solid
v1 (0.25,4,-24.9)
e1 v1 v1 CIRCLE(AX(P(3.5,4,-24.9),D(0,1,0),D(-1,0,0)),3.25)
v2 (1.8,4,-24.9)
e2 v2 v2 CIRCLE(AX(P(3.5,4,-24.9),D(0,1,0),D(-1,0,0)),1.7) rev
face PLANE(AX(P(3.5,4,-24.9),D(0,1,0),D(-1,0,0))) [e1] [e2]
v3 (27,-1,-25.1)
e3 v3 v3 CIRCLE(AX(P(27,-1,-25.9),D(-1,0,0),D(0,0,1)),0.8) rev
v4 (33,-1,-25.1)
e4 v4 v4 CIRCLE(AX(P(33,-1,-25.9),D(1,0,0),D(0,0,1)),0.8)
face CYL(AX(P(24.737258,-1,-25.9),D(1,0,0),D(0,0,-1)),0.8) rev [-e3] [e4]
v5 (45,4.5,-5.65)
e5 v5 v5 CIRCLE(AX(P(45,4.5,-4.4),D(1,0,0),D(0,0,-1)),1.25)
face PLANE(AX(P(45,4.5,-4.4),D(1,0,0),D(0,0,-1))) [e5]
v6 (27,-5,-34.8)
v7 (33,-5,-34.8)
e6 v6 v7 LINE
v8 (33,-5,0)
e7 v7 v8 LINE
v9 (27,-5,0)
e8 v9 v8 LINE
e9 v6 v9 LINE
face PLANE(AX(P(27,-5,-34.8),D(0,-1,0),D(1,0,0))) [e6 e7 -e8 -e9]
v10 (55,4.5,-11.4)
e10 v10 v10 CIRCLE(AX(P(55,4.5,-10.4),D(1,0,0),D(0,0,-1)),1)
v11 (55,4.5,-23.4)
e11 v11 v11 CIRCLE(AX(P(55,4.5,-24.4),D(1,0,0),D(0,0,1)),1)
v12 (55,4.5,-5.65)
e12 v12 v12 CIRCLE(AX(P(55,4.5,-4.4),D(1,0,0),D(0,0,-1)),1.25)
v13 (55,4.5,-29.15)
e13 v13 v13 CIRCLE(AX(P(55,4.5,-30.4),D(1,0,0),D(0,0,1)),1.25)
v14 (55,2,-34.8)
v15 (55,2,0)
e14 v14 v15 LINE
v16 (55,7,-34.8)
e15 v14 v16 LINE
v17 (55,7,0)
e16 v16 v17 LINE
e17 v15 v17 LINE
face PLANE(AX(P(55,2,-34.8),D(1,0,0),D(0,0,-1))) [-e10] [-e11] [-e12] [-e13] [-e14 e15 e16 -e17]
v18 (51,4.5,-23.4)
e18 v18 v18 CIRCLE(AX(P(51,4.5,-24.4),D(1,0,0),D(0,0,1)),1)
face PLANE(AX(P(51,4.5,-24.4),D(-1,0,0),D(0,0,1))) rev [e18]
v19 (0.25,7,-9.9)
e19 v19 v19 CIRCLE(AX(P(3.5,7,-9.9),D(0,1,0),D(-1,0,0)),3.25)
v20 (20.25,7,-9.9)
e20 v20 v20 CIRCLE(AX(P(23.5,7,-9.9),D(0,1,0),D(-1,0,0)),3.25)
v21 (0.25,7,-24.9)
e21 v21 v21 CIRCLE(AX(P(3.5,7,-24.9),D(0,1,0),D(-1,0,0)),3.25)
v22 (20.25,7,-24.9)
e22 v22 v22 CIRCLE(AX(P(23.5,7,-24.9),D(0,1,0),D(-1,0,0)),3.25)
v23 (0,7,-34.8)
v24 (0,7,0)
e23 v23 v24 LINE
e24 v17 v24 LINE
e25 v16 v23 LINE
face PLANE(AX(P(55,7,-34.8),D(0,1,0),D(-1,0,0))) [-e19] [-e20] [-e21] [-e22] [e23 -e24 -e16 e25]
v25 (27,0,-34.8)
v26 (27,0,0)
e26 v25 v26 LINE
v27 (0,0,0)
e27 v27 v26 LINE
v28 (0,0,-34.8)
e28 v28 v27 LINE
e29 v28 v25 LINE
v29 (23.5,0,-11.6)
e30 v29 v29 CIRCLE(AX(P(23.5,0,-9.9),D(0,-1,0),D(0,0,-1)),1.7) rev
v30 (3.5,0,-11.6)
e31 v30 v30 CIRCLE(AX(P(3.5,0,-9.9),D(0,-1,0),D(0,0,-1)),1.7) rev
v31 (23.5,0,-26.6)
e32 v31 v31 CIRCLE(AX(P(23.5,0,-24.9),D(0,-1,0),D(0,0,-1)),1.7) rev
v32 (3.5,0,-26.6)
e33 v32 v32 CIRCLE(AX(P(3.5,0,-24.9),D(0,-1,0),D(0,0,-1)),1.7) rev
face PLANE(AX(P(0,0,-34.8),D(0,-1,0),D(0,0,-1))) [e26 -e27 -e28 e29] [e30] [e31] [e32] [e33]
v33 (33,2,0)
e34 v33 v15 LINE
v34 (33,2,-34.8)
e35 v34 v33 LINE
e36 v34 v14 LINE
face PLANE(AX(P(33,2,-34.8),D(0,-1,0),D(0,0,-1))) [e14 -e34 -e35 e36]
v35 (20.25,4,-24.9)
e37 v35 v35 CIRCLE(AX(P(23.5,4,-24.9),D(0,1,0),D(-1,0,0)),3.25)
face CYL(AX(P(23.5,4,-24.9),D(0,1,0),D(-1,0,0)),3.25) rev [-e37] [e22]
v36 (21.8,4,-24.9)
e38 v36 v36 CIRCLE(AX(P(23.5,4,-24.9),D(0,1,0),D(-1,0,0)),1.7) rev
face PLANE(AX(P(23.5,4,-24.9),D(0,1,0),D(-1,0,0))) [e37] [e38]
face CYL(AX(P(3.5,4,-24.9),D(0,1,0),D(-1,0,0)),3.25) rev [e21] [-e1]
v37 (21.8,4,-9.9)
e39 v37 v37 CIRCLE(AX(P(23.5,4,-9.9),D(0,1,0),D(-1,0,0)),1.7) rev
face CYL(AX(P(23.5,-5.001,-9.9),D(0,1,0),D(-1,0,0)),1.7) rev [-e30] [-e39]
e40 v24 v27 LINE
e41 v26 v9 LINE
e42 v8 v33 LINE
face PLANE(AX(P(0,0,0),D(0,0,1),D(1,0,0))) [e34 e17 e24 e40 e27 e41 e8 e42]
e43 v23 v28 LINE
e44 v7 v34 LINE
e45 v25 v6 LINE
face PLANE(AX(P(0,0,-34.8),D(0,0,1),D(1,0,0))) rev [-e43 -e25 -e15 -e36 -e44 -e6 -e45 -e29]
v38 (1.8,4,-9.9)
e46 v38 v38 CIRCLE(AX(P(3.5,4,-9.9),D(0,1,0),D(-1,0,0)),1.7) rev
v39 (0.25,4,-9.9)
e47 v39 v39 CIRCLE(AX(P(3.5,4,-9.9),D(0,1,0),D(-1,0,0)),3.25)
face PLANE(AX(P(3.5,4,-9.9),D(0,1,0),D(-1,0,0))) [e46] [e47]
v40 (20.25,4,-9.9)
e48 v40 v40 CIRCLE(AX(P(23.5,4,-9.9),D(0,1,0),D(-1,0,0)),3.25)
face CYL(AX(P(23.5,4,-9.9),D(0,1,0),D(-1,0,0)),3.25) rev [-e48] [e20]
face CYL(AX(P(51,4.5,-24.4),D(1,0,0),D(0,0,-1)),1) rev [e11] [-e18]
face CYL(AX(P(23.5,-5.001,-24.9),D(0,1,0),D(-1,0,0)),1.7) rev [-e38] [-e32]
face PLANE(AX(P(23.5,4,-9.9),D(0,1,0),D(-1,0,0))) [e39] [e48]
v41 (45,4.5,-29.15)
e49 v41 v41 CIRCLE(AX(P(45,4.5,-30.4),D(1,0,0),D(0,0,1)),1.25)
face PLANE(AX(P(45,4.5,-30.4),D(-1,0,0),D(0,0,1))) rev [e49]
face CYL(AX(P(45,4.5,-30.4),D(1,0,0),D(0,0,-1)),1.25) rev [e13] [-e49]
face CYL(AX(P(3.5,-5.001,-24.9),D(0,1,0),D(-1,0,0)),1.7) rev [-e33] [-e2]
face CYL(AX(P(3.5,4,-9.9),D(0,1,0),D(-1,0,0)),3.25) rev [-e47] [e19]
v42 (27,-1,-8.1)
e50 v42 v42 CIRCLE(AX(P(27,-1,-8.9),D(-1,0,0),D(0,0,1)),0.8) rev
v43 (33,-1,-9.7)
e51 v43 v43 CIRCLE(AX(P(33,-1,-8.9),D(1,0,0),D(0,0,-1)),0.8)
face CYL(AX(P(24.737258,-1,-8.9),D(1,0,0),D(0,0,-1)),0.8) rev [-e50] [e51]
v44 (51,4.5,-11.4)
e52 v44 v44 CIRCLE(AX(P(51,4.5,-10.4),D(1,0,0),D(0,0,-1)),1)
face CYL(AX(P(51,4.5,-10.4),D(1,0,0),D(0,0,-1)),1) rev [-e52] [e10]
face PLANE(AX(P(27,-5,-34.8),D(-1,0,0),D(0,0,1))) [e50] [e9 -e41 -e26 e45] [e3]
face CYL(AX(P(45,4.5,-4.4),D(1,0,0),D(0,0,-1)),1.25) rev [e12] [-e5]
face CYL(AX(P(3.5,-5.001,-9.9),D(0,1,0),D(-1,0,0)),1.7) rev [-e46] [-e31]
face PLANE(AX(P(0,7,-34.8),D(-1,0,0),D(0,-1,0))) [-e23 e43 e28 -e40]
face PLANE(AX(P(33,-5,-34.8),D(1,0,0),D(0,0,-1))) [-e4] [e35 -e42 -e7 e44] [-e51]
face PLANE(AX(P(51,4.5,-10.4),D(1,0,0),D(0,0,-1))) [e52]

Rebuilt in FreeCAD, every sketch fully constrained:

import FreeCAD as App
import Part
import Sketcher

V = App.Vector


def add_polygon(sketch, points):
    """Adds a closed chain of lines whose ends are joined by coincident constraints."""
    first, n = sketch.GeometryCount, len(points)
    for a, b in zip(points, points[1:] + points[:1]):
        sketch.addGeometry(Part.LineSegment(App.Vector(*a, 0), App.Vector(*b, 0)), False)
    for i in range(n):
        sketch.addConstraint(Sketcher.Constraint("Coincident", first + i, 2, first + (i + 1) % n, 1))

doc = App.newDocument("Part")
body = doc.addObject("PartDesign::Body", "Body")

sketch1 = doc.addObject("Sketcher::SketchObject", "Sketch")
body.addObject(sketch1)
sketch1.AttachmentSupport = (doc.XY_Plane, [""])
sketch1.MapMode = "FlatFace"
add_polygon(sketch1, [(0, 0), (27, 0), (27, -5), (33, -5), (33, 2), (55, 2), (55, 7), (0, 7)])
sketch1.addConstraint([
    Sketcher.Constraint("Horizontal", 0),
    Sketcher.Constraint("Vertical", 1),
    Sketcher.Constraint("Horizontal", 2),
    Sketcher.Constraint("Vertical", 3),
    Sketcher.Constraint("Horizontal", 4),
    Sketcher.Constraint("Vertical", 5),
    Sketcher.Constraint("Horizontal", 6),
    Sketcher.Constraint("Vertical", 7),
    Sketcher.Constraint("Coincident", 7, 2, -1, 1),
    Sketcher.Constraint("Equal", 1, 5),
    Sketcher.Constraint("DistanceX", 0, 1, 0, 2, 27.0),
    Sketcher.Constraint("DistanceX", 2, 1, 2, 2, 6.0),
    Sketcher.Constraint("DistanceX", 4, 1, 4, 2, 22.0),
    Sketcher.Constraint("DistanceY", 1, 2, 1, 1, 5.0),
    Sketcher.Constraint("DistanceY", 3, 1, 3, 2, 7.0),
])
pad1 = doc.addObject("PartDesign::Pad", "Pad")
body.addObject(pad1)
pad1.Profile = sketch1
pad1.Length = 34.8
pad1.Reversed = True

sketch2 = doc.addObject("Sketcher::SketchObject", "Sketch001")
body.addObject(sketch2)
sketch2.AttachmentSupport = (doc.XZ_Plane, [""])
sketch2.MapMode = "FlatFace"
sketch2.AttachmentOffset = App.Placement(V(0, 0, -7), App.Rotation())
sketch2.addGeometry(Part.Circle(V(3.5, -24.9, 0), V(0, 0, 1), 1.7), False)
sketch2.addConstraint([
    Sketcher.Constraint("Diameter", 0, 3.4),
    Sketcher.Constraint("DistanceX", -1, 1, 0, 3, 3.5),
    Sketcher.Constraint("DistanceY", 0, 3, -1, 1, 24.9),
])
pocket1 = doc.addObject("PartDesign::Pocket", "Pocket")
body.addObject(pocket1)
pocket1.Profile = sketch2
pocket1.Type = "UpToFirst"
pocket1.Reversed = True

sketch3 = doc.addObject("Sketcher::SketchObject", "Sketch002")
body.addObject(sketch3)
sketch3.AttachmentSupport = (doc.XZ_Plane, [""])
sketch3.MapMode = "FlatFace"
sketch3.AttachmentOffset = App.Placement(V(0, 0, -7), App.Rotation())
sketch3.addGeometry(Part.Circle(V(23.5, -24.9, 0), V(0, 0, 1), 1.7), False)
sketch3.addConstraint([
    Sketcher.Constraint("Diameter", 0, 3.4),
    Sketcher.Constraint("DistanceX", -1, 1, 0, 3, 23.5),
    Sketcher.Constraint("DistanceY", 0, 3, -1, 1, 24.9),
])
pocket2 = doc.addObject("PartDesign::Pocket", "Pocket001")
body.addObject(pocket2)
pocket2.Profile = sketch3
pocket2.Type = "UpToFirst"
pocket2.Reversed = True

sketch4 = doc.addObject("Sketcher::SketchObject", "Sketch003")
body.addObject(sketch4)
sketch4.AttachmentSupport = (doc.XZ_Plane, [""])
sketch4.MapMode = "FlatFace"
sketch4.AttachmentOffset = App.Placement(V(0, 0, -7), App.Rotation())
sketch4.addGeometry(Part.Circle(V(23.5, -9.9, 0), V(0, 0, 1), 1.7), False)
sketch4.addConstraint([
    Sketcher.Constraint("Diameter", 0, 3.4),
    Sketcher.Constraint("DistanceX", -1, 1, 0, 3, 23.5),
    Sketcher.Constraint("DistanceY", 0, 3, -1, 1, 9.9),
])
pocket3 = doc.addObject("PartDesign::Pocket", "Pocket002")
body.addObject(pocket3)
pocket3.Profile = sketch4
pocket3.Type = "UpToFirst"
pocket3.Reversed = True

sketch5 = doc.addObject("Sketcher::SketchObject", "Sketch004")
body.addObject(sketch5)
sketch5.AttachmentSupport = (doc.XZ_Plane, [""])
sketch5.MapMode = "FlatFace"
sketch5.AttachmentOffset = App.Placement(V(0, 0, -7), App.Rotation())
sketch5.addGeometry(Part.Circle(V(3.5, -9.9, 0), V(0, 0, 1), 1.7), False)
sketch5.addConstraint([
    Sketcher.Constraint("Diameter", 0, 3.4),
    Sketcher.Constraint("DistanceX", -1, 1, 0, 3, 3.5),
    Sketcher.Constraint("DistanceY", 0, 3, -1, 1, 9.9),
])
pocket4 = doc.addObject("PartDesign::Pocket", "Pocket003")
body.addObject(pocket4)
pocket4.Profile = sketch5
pocket4.Type = "UpToFirst"
pocket4.Reversed = True

sketch6 = doc.addObject("Sketcher::SketchObject", "Sketch005")
body.addObject(sketch6)
sketch6.AttachmentSupport = (doc.YZ_Plane, [""])
sketch6.MapMode = "FlatFace"
sketch6.AttachmentOffset = App.Placement(V(0, 0, 33), App.Rotation())
sketch6.addGeometry([
    Part.Circle(V(-1, -8.9, 0), V(0, 0, 1), 0.8),
    Part.Circle(V(-1, -25.9, 0), V(0, 0, 1), 0.8),
], False)
sketch6.addConstraint([
    Sketcher.Constraint("Equal", 0, 1),
    Sketcher.Constraint("Vertical", 0, 3, 1, 3),
    Sketcher.Constraint("Diameter", 0, 1.6),
    Sketcher.Constraint("DistanceX", 0, 3, -1, 1, 1.0),
    Sketcher.Constraint("DistanceY", 1, 3, 0, 3, 17.0),
    Sketcher.Constraint("DistanceY", 0, 3, -1, 1, 8.9),
])
pocket5 = doc.addObject("PartDesign::Pocket", "Pocket004")
body.addObject(pocket5)
pocket5.Profile = sketch6
pocket5.Length = 6

sketch7 = doc.addObject("Sketcher::SketchObject", "Sketch006")
body.addObject(sketch7)
sketch7.AttachmentSupport = (doc.YZ_Plane, [""])
sketch7.MapMode = "FlatFace"
sketch7.AttachmentOffset = App.Placement(V(0, 0, 55), App.Rotation())
sketch7.addGeometry([
    Part.Circle(V(4.5, -4.4, 0), V(0, 0, 1), 1.2),
    Part.Circle(V(4.5, -30.4, 0), V(0, 0, 1), 1.2),
], False)
sketch7.addConstraint([
    Sketcher.Constraint("Equal", 0, 1),
    Sketcher.Constraint("Vertical", 0, 3, 1, 3),
    Sketcher.Constraint("Diameter", 0, 2.5),
    Sketcher.Constraint("DistanceY", 1, 3, 0, 3, 26.0),
    Sketcher.Constraint("DistanceX", -1, 1, 0, 3, 4.5),
    Sketcher.Constraint("DistanceY", 0, 3, -1, 1, 4.4),
])
pocket6 = doc.addObject("PartDesign::Pocket", "Pocket005")
body.addObject(pocket6)
pocket6.Profile = sketch7
pocket6.Length = 10

sketch8 = doc.addObject("Sketcher::SketchObject", "Sketch007")
body.addObject(sketch8)
sketch8.AttachmentSupport = (doc.YZ_Plane, [""])
sketch8.MapMode = "FlatFace"
sketch8.AttachmentOffset = App.Placement(V(0, 0, 55), App.Rotation())
sketch8.addGeometry([
    Part.Circle(V(4.5, -10.4, 0), V(0, 0, 1), 1),
    Part.Circle(V(4.5, -24.4, 0), V(0, 0, 1), 1),
], False)
sketch8.addConstraint([
    Sketcher.Constraint("Equal", 0, 1),
    Sketcher.Constraint("Vertical", 0, 3, 1, 3),
    Sketcher.Constraint("Diameter", 0, 2.0),
    Sketcher.Constraint("DistanceY", 1, 3, 0, 3, 14.0),
    Sketcher.Constraint("DistanceX", -1, 1, 0, 3, 4.5),
    Sketcher.Constraint("DistanceY", 0, 3, -1, 1, 10.4),
])
pocket7 = doc.addObject("PartDesign::Pocket", "Pocket006")
body.addObject(pocket7)
pocket7.Profile = sketch8
pocket7.Length = 4

sketch9 = doc.addObject("Sketcher::SketchObject", "Sketch008")
body.addObject(sketch9)
sketch9.AttachmentSupport = (doc.XZ_Plane, [""])
sketch9.MapMode = "FlatFace"
sketch9.AttachmentOffset = App.Placement(V(0, 0, -7), App.Rotation())
sketch9.addGeometry([
    Part.Circle(V(3.5, -24.9, 0), V(0, 0, 1), 3.2),
    Part.Circle(V(23.5, -24.9, 0), V(0, 0, 1), 3.2),
    Part.Circle(V(23.5, -9.9, 0), V(0, 0, 1), 3.2),
    Part.Circle(V(3.5, -9.9, 0), V(0, 0, 1), 3.2),
], False)
sketch9.addConstraint([
    Sketcher.Constraint("Equal", 0, 1),
    Sketcher.Constraint("Equal", 1, 2),
    Sketcher.Constraint("Equal", 2, 3),
    Sketcher.Constraint("Horizontal", 0, 3, 1, 3),
    Sketcher.Constraint("Horizontal", 2, 3, 3, 3),
    Sketcher.Constraint("Vertical", 1, 3, 2, 3),
    Sketcher.Constraint("Vertical", 0, 3, 3, 3),
    Sketcher.Constraint("Diameter", 0, 6.5),
    Sketcher.Constraint("DistanceX", 0, 3, 1, 3, 20.0),
    Sketcher.Constraint("DistanceY", 1, 3, 2, 3, 15.0),
    Sketcher.Constraint("DistanceX", -1, 1, 0, 3, 3.5),
    Sketcher.Constraint("DistanceY", 0, 3, -1, 1, 24.9),
])
pocket8 = doc.addObject("PartDesign::Pocket", "Pocket007")
body.addObject(pocket8)
pocket8.Profile = sketch9
pocket8.Length = 3
pocket8.Reversed = True

doc.recompute()
